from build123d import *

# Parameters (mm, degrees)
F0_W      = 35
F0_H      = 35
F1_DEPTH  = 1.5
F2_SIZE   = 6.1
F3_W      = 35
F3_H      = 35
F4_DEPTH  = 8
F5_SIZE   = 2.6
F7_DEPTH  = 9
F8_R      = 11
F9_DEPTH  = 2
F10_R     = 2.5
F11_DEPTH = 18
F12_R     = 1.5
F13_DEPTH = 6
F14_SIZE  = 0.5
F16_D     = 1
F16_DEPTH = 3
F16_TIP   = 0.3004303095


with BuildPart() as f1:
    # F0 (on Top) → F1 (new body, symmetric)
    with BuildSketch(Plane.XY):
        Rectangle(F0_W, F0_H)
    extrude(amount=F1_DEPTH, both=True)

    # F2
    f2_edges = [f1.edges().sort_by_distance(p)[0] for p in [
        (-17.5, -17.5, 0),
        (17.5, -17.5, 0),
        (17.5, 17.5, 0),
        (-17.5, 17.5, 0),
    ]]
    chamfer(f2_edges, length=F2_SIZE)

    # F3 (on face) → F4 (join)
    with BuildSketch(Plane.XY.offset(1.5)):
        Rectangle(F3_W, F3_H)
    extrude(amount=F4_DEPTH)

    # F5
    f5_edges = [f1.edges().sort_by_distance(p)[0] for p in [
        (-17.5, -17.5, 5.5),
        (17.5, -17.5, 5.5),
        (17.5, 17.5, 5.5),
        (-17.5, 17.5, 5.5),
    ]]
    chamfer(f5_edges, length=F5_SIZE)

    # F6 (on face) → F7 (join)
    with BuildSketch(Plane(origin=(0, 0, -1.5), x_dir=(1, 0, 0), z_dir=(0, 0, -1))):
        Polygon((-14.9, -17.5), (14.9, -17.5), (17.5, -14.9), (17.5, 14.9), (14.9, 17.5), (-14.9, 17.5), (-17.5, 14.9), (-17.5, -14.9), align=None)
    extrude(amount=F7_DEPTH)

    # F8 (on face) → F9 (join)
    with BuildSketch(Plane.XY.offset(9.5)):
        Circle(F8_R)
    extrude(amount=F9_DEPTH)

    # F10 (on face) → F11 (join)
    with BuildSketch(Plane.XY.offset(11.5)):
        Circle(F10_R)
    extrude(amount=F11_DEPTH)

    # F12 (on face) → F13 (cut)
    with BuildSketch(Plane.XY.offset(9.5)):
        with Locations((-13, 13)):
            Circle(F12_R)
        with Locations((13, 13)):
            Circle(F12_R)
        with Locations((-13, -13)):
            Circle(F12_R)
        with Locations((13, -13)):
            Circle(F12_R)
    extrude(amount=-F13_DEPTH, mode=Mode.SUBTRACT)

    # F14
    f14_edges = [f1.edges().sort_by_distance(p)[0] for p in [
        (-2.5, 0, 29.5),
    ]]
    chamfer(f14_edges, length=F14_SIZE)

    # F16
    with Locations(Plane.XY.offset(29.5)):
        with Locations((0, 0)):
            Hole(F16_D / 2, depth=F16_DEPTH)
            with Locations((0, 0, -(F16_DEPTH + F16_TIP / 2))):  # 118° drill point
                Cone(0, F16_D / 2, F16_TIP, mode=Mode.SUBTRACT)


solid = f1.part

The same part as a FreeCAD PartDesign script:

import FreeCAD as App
import Part
import Sketcher

V = App.Vector


def edges_at(feature, points):
    """Names of the edges that pass closest to the given points."""
    edges = feature.Shape.Edges
    near = lambda p: min(range(len(edges)), key=lambda i: edges[i].distToShape(Part.Vertex(*p))[0])
    return sorted({f"Edge{near(p) + 1}" for p in points})

doc = App.newDocument("Part")
body = doc.addObject("PartDesign::Body", "Body")

sketch1 = body.newObject("Sketcher::SketchObject", "Sketch")
sketch1.AttachmentSupport = (doc.getObject("XY_Plane"), [""])
sketch1.MapMode = "FlatFace"
sketch1.addGeometry(Part.LineSegment(V(-17.5, 17.5, 0), V(-17.5, -17.5, 0)), False)
sketch1.addGeometry(Part.LineSegment(V(-17.5, -17.5, 0), V(17.5, -17.5, 0)), False)
sketch1.addGeometry(Part.LineSegment(V(17.5, -17.5, 0), V(17.5, 17.5, 0)), False)
sketch1.addGeometry(Part.LineSegment(V(17.5, 17.5, 0), V(-17.5, 17.5, 0)), False)
sketch1.addConstraint(Sketcher.Constraint("Coincident", 0, 2, 1, 1))
sketch1.addConstraint(Sketcher.Constraint("Coincident", 1, 2, 2, 1))
sketch1.addConstraint(Sketcher.Constraint("Coincident", 2, 2, 3, 1))
sketch1.addConstraint(Sketcher.Constraint("Coincident", 3, 2, 0, 1))
sketch1.addConstraint(Sketcher.Constraint("Vertical", 0))
sketch1.addConstraint(Sketcher.Constraint("Horizontal", 1))
sketch1.addConstraint(Sketcher.Constraint("Vertical", 2))
sketch1.addConstraint(Sketcher.Constraint("Horizontal", 3))
sketch1.addConstraint(Sketcher.Constraint("Symmetric", 0, 2, 2, 2, -1, 1))
sketch1.addConstraint(Sketcher.Constraint("Equal", 3, 0))
sketch1.addConstraint(Sketcher.Constraint("DistanceX", 1, 1, 1, 2, 35.0))
pad1 = body.newObject("PartDesign::Pad", "Pad")
pad1.Profile = sketch1
pad1.Length = 3
pad1.Midplane = True
doc.recompute()

chamfer = body.newObject("PartDesign::Chamfer", "Chamfer")
chamfer.Base = (pad1, edges_at(pad1, [
    (-17.5, -17.5, 0),
    (17.5, -17.5, 0),
    (17.5, 17.5, 0),
    (-17.5, 17.5, 0),
]))
chamfer.Size = 6.1

sketch2 = body.newObject("Sketcher::SketchObject", "Sketch001")
sketch2.AttachmentSupport = (doc.getObject("XY_Plane"), [""])
sketch2.MapMode = "FlatFace"
sketch2.AttachmentOffset = App.Placement(V(0, 0, 1.5), App.Rotation())
sketch2.addGeometry(Part.LineSegment(V(-17.5, 17.5, 0), V(-17.5, -17.5, 0)), False)
sketch2.addGeometry(Part.LineSegment(V(-17.5, -17.5, 0), V(17.5, -17.5, 0)), False)
sketch2.addGeometry(Part.LineSegment(V(17.5, -17.5, 0), V(17.5, 17.5, 0)), False)
sketch2.addGeometry(Part.LineSegment(V(17.5, 17.5, 0), V(-17.5, 17.5, 0)), False)
sketch2.addConstraint(Sketcher.Constraint("Coincident", 0, 2, 1, 1))
sketch2.addConstraint(Sketcher.Constraint("Coincident", 1, 2, 2, 1))
sketch2.addConstraint(Sketcher.Constraint("Coincident", 2, 2, 3, 1))
sketch2.addConstraint(Sketcher.Constraint("Coincident", 3, 2, 0, 1))
sketch2.addConstraint(Sketcher.Constraint("Vertical", 0))
sketch2.addConstraint(Sketcher.Constraint("Horizontal", 1))
sketch2.addConstraint(Sketcher.Constraint("Vertical", 2))
sketch2.addConstraint(Sketcher.Constraint("Horizontal", 3))
sketch2.addConstraint(Sketcher.Constraint("Symmetric", 0, 2, 2, 2, -1, 1))
sketch2.addConstraint(Sketcher.Constraint("Equal", 3, 0))
sketch2.addConstraint(Sketcher.Constraint("DistanceX", 1, 1, 1, 2, 35.0))
pad2 = body.newObject("PartDesign::Pad", "Pad001")
pad2.Profile = sketch2
pad2.Length = 8
doc.recompute()

chamfer2 = body.newObject("PartDesign::Chamfer", "Chamfer001")
chamfer2.Base = (pad2, edges_at(pad2, [
    (-17.5, -17.5, 5.5),
    (17.5, -17.5, 5.5),
    (17.5, 17.5, 5.5),
    (-17.5, 17.5, 5.5),
]))
chamfer2.Size = 2.6

sketch3 = body.newObject("Sketcher::SketchObject", "Sketch002")
sketch3.AttachmentSupport = (doc.getObject("XY_Plane"), [""])
sketch3.MapMode = "FlatFace"
sketch3.AttachmentOffset = App.Placement(V(0, 0, -1.5), App.Rotation())
sketch3.addGeometry(Part.LineSegment(V(-14.9, 17.5, 0), V(14.9, 17.5, 0)), False)
sketch3.addGeometry(Part.LineSegment(V(14.9, 17.5, 0), V(17.5, 14.9, 0)), False)
sketch3.addGeometry(Part.LineSegment(V(17.5, 14.9, 0), V(17.5, -14.9, 0)), False)
sketch3.addGeometry(Part.LineSegment(V(17.5, -14.9, 0), V(14.9, -17.5, 0)), False)
sketch3.addGeometry(Part.LineSegment(V(14.9, -17.5, 0), V(-14.9, -17.5, 0)), False)
sketch3.addGeometry(Part.LineSegment(V(-14.9, -17.5, 0), V(-17.5, -14.9, 0)), False)
sketch3.addGeometry(Part.LineSegment(V(-17.5, -14.9, 0), V(-17.5, 14.9, 0)), False)
sketch3.addGeometry(Part.LineSegment(V(-17.5, 14.9, 0), V(-14.9, 17.5, 0)), False)
sketch3.addConstraint(Sketcher.Constraint("Coincident", 0, 2, 1, 1))
sketch3.addConstraint(Sketcher.Constraint("Coincident", 1, 2, 2, 1))
sketch3.addConstraint(Sketcher.Constraint("Coincident", 2, 2, 3, 1))
sketch3.addConstraint(Sketcher.Constraint("Coincident", 3, 2, 4, 1))
sketch3.addConstraint(Sketcher.Constraint("Coincident", 4, 2, 5, 1))
sketch3.addConstraint(Sketcher.Constraint("Coincident", 5, 2, 6, 1))
sketch3.addConstraint(Sketcher.Constraint("Coincident", 6, 2, 7, 1))
sketch3.addConstraint(Sketcher.Constraint("Coincident", 7, 2, 0, 1))
sketch3.addConstraint(Sketcher.Constraint("Horizontal", 0))
sketch3.addConstraint(Sketcher.Constraint("Vertical", 2))
sketch3.addConstraint(Sketcher.Constraint("Horizontal", 4))
sketch3.addConstraint(Sketcher.Constraint("Vertical", 6))
sketch3.addConstraint(Sketcher.Constraint("Symmetric", 0, 2, 4, 2, -1, 1))
sketch3.addConstraint(Sketcher.Constraint("Symmetric", 1, 2, 5, 2, -1, 1))
sketch3.addConstraint(Sketcher.Constraint("Perpendicular", 1, 3))
sketch3.addConstraint(Sketcher.Constraint("Perpendicular", 5, 7))
sketch3.addConstraint(Sketcher.Constraint("Horizontal", 2, 2, 5, 2))
sketch3.addConstraint(Sketcher.Constraint("Horizontal", 1, 2, 6, 2))
sketch3.addConstraint(Sketcher.Constraint("Vertical", 0, 2, 3, 2))
sketch3.addConstraint(Sketcher.Constraint("Equal", 4, 2))
sketch3.addConstraint(Sketcher.Constraint("DistanceX", 0, 1, 0, 2, 29.8))
sketch3.addConstraint(Sketcher.Constraint("DistanceY", 3, 2, 0, 2, 35.0))
pad3 = body.newObject("PartDesign::Pad", "Pad002")
pad3.Profile = sketch3
pad3.Length = 9
pad3.Reversed = True

sketch4 = body.newObject("Sketcher::SketchObject", "Sketch003")
sketch4.AttachmentSupport = (doc.getObject("XY_Plane"), [""])
sketch4.MapMode = "FlatFace"
sketch4.AttachmentOffset = App.Placement(V(0, 0, 9.5), App.Rotation())
sketch4.addGeometry(Part.Circle(V(0, 0, 0), V(0, 0, 1), 11), False)
sketch4.addConstraint(Sketcher.Constraint("Coincident", 0, 3, -1, 1))
sketch4.addConstraint(Sketcher.Constraint("Diameter", 0, 22.0))
pad4 = body.newObject("PartDesign::Pad", "Pad003")
pad4.Profile = sketch4
pad4.Length = 2

sketch5 = body.newObject("Sketcher::SketchObject", "Sketch004")
sketch5.AttachmentSupport = (doc.getObject("XY_Plane"), [""])
sketch5.MapMode = "FlatFace"
sketch5.AttachmentOffset = App.Placement(V(0, 0, 11.5), App.Rotation())
sketch5.addGeometry(Part.Circle(V(0, 0, 0), V(0, 0, 1), 2.5), False)
sketch5.addConstraint(Sketcher.Constraint("Coincident", 0, 3, -1, 1))
sketch5.addConstraint(Sketcher.Constraint("Diameter", 0, 5.0))
pad5 = body.newObject("PartDesign::Pad", "Pad004")
pad5.Profile = sketch5
pad5.Length = 18

sketch6 = body.newObject("Sketcher::SketchObject", "Sketch005")
sketch6.AttachmentSupport = (doc.getObject("XY_Plane"), [""])
sketch6.MapMode = "FlatFace"
sketch6.AttachmentOffset = App.Placement(V(0, 0, 9.5), App.Rotation())
sketch6.addGeometry(Part.Circle(V(-13, 13, 0), V(0, 0, 1), 1.5), False)
sketch6.addGeometry(Part.Circle(V(13, 13, 0), V(0, 0, 1), 1.5), False)
sketch6.addGeometry(Part.Circle(V(-13, -13, 0), V(0, 0, 1), 1.5), False)
sketch6.addGeometry(Part.Circle(V(13, -13, 0), V(0, 0, 1), 1.5), False)
sketch6.addConstraint(Sketcher.Constraint("Equal", 0, 1))
sketch6.addConstraint(Sketcher.Constraint("Equal", 1, 2))
sketch6.addConstraint(Sketcher.Constraint("Equal", 2, 3))
sketch6.addConstraint(Sketcher.Constraint("Symmetric", 1, 3, 2, 3, -1, 1))
sketch6.addConstraint(Sketcher.Constraint("Symmetric", 0, 3, 3, 3, -1, 1))
sketch6.addConstraint(Sketcher.Constraint("Symmetric", 0, 3, 1, 3, -2))
sketch6.addConstraint(Sketcher.Constraint("Diameter", 0, 3.0))
sketch6.addConstraint(Sketcher.Constraint("DistanceX", 0, 3, -1, 1, 13.0))
sketch6.addConstraint(Sketcher.Constraint("DistanceY", -1, 1, 0, 3, 13.0))
pocket1 = body.newObject("PartDesign::Pocket", "Pocket")
pocket1.Profile = sketch6
pocket1.Length = 6
doc.recompute()

chamfer3 = body.newObject("PartDesign::Chamfer", "Chamfer002")
chamfer3.Base = (pocket1, edges_at(pocket1, [(-2.5, 0, 29.5)]))
chamfer3.Size = 0.5

sketch7 = body.newObject("Sketcher::SketchObject", "Sketch006")
sketch7.AttachmentSupport = (doc.getObject("XY_Plane"), [""])
sketch7.MapMode = "FlatFace"
sketch7.AttachmentOffset = App.Placement(V(0, 0, 29.5), App.Rotation())
sketch7.addGeometry(Part.Circle(V(0, 0, 0), V(0, 0, 1), 0.5), False)
sketch7.addConstraint(Sketcher.Constraint("Coincident", 0, 3, -1, 1))
sketch7.addConstraint(Sketcher.Constraint("Diameter", 0, 1.0))
doc.recompute()
hole = body.newObject("PartDesign::Hole", "Hole")
hole.Profile = sketch7
hole.ThreadType = "None"
hole.Diameter = 1
hole.DepthType = "Dimension"
hole.Depth = 3
hole.DrillPoint = "Angled"
hole.DrillPointAngle = 118

doc.recompute()
